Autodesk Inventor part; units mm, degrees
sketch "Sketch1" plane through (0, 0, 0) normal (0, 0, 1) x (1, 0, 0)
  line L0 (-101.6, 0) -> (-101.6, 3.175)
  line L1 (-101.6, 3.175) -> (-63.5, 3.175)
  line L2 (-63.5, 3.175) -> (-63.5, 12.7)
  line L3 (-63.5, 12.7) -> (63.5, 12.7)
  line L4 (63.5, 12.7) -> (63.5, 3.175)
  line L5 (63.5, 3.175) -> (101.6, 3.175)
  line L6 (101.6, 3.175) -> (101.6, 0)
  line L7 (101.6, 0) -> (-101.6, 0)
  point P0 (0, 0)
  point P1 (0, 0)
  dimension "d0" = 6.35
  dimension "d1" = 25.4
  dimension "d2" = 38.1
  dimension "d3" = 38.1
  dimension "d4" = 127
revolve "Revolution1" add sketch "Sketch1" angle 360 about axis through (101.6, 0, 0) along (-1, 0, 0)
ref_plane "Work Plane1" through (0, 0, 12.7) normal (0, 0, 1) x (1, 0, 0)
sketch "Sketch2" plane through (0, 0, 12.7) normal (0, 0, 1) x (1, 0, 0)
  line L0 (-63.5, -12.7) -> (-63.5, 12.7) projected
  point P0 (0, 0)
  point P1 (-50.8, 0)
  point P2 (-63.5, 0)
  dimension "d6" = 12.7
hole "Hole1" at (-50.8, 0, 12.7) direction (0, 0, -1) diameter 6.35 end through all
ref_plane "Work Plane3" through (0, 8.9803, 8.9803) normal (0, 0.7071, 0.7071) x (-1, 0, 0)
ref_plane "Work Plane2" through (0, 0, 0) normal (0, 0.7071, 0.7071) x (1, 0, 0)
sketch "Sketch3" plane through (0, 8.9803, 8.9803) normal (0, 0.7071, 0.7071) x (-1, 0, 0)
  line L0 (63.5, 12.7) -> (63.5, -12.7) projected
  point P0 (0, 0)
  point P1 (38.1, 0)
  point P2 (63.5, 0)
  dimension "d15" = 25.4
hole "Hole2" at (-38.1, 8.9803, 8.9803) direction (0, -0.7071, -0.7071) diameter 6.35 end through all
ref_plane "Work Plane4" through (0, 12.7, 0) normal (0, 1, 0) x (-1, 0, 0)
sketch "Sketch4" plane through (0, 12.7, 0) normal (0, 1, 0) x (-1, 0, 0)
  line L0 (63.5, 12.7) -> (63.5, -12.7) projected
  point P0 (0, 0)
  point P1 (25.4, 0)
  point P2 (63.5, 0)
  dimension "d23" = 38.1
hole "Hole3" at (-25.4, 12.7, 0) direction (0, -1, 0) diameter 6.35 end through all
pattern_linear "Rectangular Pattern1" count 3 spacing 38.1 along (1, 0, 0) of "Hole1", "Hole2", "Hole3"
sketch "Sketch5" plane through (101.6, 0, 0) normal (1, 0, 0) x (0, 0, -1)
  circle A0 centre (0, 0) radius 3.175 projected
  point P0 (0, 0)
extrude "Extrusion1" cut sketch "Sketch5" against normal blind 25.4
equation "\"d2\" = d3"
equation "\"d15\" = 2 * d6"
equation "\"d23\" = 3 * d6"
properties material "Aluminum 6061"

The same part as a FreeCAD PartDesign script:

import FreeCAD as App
import Part
import Sketcher
from FreeCAD import Vector
Q = App.Units.Quantity


def add_polygon(sketch, points):
    """Adds a closed chain of lines whose ends are joined by coincident constraints."""
    first, n = sketch.GeometryCount, len(points)
    for a, b in zip(points, points[1:] + points[:1]):
        sketch.addGeometry(Part.LineSegment(App.Vector(*a, 0), App.Vector(*b, 0)), False)
    for i in range(n):
        sketch.addConstraint(Sketcher.Constraint("Coincident", first + i, 2, first + (i + 1) % n, 1))

doc = App.newDocument("Part")
params = doc.addObject("Spreadsheet::Sheet", "Params")
for row, (alias, value) in enumerate([
    ("sketch1_width", "5 in"),
    ("sketch1_width2", "1.5 in"),
    ("sketch1_height", "0.125 in"),
    ("revolution_angle", "360 deg"),
    ("sketch2_diameter", "0.25 in"),
    ("hole_diameter", "0.25 in"),
    ("sketch3_diameter", "0.25 in"),
    ("hole2_diameter", "0.25 in"),
    ("sketch4_diameter", "0.25 in"),
    ("hole3_diameter", "0.25 in"),
    ("linearpattern_pitch", "1.5 in"),
    ("sketch5_diameter", "0.25 in"),
    ("pocket1_length", "1 in"),
], start=1):
    params.set(f"A{row}", alias)
    params.set(f"B{row}", "=" + value)
    params.setAlias(f"B{row}", alias)

body = doc.addObject("PartDesign::Body", "Body")

# Sketch on XY plane
sketch1 = body.newObject("Sketcher::SketchObject", "Sketch")
sketch1.AttachmentSupport = (doc.getObject("XY_Plane"), [""])
sketch1.MapMode = "FlatFace"
add_polygon(sketch1, [(-101.6, 3.175), (-101.6, 0), (101.6, 0), (101.6, 3.175), (63.5, 3.175), (63.5, 12.7), (-63.5, 12.7), (-63.5, 3.175)])  # lines 0-7
sketch1.addConstraint(Sketcher.Constraint("Vertical", 0))
sketch1.addConstraint(Sketcher.Constraint("Horizontal", 1))
sketch1.addConstraint(Sketcher.Constraint("Vertical", 2))
sketch1.addConstraint(Sketcher.Constraint("Horizontal", 3))
sketch1.addConstraint(Sketcher.Constraint("Vertical", 4))
sketch1.addConstraint(Sketcher.Constraint("Horizontal", 5))
sketch1.addConstraint(Sketcher.Constraint("Vertical", 6))
sketch1.addConstraint(Sketcher.Constraint("Horizontal", 7))
sketch1.addConstraint(Sketcher.Constraint("Symmetric", 0, 2, 1, 2, -1, 1))
sketch1.addConstraint(Sketcher.Constraint("Symmetric", 3, 2, 6, 2, -2))
sketch1.addConstraint(Sketcher.Constraint("DistanceX", 5, 2, 5, 1, Q("5 in")))
sketch1.addConstraint(Sketcher.Constraint("DistanceX", 3, 2, 3, 1, Q("1.5 in")))
sketch1.addConstraint(Sketcher.Constraint("DistanceY", -1, 1, 4, 2, Q("0.5 in")))
sketch1.addConstraint(Sketcher.Constraint("DistanceY", 0, 2, 0, 1, Q("0.125 in")))
sketch1.setExpression("Constraints[18]", "Params.sketch1_width")
sketch1.setExpression("Constraints[19]", "Params.sketch1_width2")
sketch1.setExpression("Constraints[21]", "Params.sketch1_height")
revolution = body.newObject("PartDesign::Revolution", "Revolution")
revolution.Profile = sketch1
revolution.ReferenceAxis = (sketch1, ["H_Axis"])
revolution.setExpression("Angle", "Params.revolution_angle")

# Sketch on XY plane
sketch2 = body.newObject("Sketcher::SketchObject", "Sketch001")
sketch2.AttachmentSupport = (doc.getObject("XY_Plane"), [""])
sketch2.MapMode = "FlatFace"
sketch2.AttachmentOffset = App.Placement(Vector(0, 0, 0.5 * 25.4), App.Rotation())
sketch2.addGeometry(Part.Circle(Vector(-50.8, 0, 0), Vector(0, 0, 1), 3.175), False)
sketch2.addConstraint(Sketcher.Constraint("PointOnObject", 0, 3, -1))
sketch2.addConstraint(Sketcher.Constraint("Diameter", 0, Q("0.25 in")))
sketch2.addConstraint(Sketcher.Constraint("DistanceX", 0, 3, -1, 1, Q("2 in")))
sketch2.setExpression("Constraints[1]", "Params.sketch2_diameter")
doc.recompute()
hole = body.newObject("PartDesign::Hole", "Hole")
hole.Profile = sketch2
hole.ThreadType = "None"
hole.setExpression("Diameter", "Params.hole_diameter")
hole.DepthType = "ThroughAll"

# Sketch on an angled plane
sketch3 = body.newObject("Sketcher::SketchObject", "Sketch002")
sketch3.Placement = App.Placement(Vector(0, 8.9803, 8.9803), App.Rotation(Vector(0, -0.707106781, 0.707106781), Vector(0.999999999, 0, 0), Vector(0, 0.707106781, 0.707106781), "ZXY"))
sketch3.addGeometry(Part.Circle(Vector(0, -38.1, 0), Vector(0, 0, 1), 3.175), False)
sketch3.addConstraint(Sketcher.Constraint("PointOnObject", 0, 3, -2))
sketch3.addConstraint(Sketcher.Constraint("Diameter", 0, Q("0.25 in")))
sketch3.addConstraint(Sketcher.Constraint("DistanceY", 0, 3, -1, 1, Q("1.5 in")))
sketch3.setExpression("Constraints[1]", "Params.sketch3_diameter")
doc.recompute()
hole2 = body.newObject("PartDesign::Hole", "Hole001")
hole2.Profile = sketch3
hole2.ThreadType = "None"
hole2.setExpression("Diameter", "Params.hole2_diameter")
hole2.DepthType = "ThroughAll"

# Sketch on XZ plane
sketch4 = body.newObject("Sketcher::SketchObject", "Sketch003")
sketch4.AttachmentSupport = (doc.getObject("XZ_Plane"), [""])
sketch4.MapMode = "FlatFace"
sketch4.AttachmentOffset = App.Placement(Vector(0, 0, -0.5 * 25.4), App.Rotation())
sketch4.addGeometry(Part.Circle(Vector(-25.4, 0, 0), Vector(0, 0, 1), 3.175), False)
sketch4.addConstraint(Sketcher.Constraint("PointOnObject", 0, 3, -1))
sketch4.addConstraint(Sketcher.Constraint("Diameter", 0, Q("0.25 in")))
sketch4.addConstraint(Sketcher.Constraint("DistanceX", 0, 3, -1, 1, Q("1 in")))
sketch4.setExpression("Constraints[1]", "Params.sketch4_diameter")
doc.recompute()
hole3 = body.newObject("PartDesign::Hole", "Hole002")
hole3.Profile = sketch4
hole3.ThreadType = "None"
hole3.setExpression("Diameter", "Params.hole3_diameter")
hole3.DepthType = "ThroughAll"
hole3.Reversed = True
doc.recompute()

linearpattern = body.newObject("PartDesign::LinearPattern", "LinearPattern")
linearpattern.Originals = [hole, hole2, hole3]
linearpattern.Direction = (doc.getObject("X_Axis"), [""])
linearpattern.Mode = "offset"
linearpattern.setExpression("Offset", "Params.linearpattern_pitch")
linearpattern.Occurrences = 3
body.Tip = linearpattern

# Sketch on YZ plane
sketch5 = body.newObject("Sketcher::SketchObject", "Sketch004")
sketch5.AttachmentSupport = (doc.getObject("YZ_Plane"), [""])
sketch5.MapMode = "FlatFace"
sketch5.AttachmentOffset = App.Placement(Vector(0, 0, 4 * 25.4), App.Rotation())
sketch5.addGeometry(Part.Circle(Vector(0, 0, 0), Vector(0, 0, 1), 3.175), False)
sketch5.addConstraint(Sketcher.Constraint("Coincident", 0, 3, -1, 1))
sketch5.addConstraint(Sketcher.Constraint("Diameter", 0, Q("0.25 in")))
sketch5.setExpression("Constraints[1]", "Params.sketch5_diameter")
pocket1 = body.newObject("PartDesign::Pocket", "Pocket")
pocket1.Profile = sketch5
pocket1.setExpression("Length", "Params.pocket1_length")

doc.recompute()
